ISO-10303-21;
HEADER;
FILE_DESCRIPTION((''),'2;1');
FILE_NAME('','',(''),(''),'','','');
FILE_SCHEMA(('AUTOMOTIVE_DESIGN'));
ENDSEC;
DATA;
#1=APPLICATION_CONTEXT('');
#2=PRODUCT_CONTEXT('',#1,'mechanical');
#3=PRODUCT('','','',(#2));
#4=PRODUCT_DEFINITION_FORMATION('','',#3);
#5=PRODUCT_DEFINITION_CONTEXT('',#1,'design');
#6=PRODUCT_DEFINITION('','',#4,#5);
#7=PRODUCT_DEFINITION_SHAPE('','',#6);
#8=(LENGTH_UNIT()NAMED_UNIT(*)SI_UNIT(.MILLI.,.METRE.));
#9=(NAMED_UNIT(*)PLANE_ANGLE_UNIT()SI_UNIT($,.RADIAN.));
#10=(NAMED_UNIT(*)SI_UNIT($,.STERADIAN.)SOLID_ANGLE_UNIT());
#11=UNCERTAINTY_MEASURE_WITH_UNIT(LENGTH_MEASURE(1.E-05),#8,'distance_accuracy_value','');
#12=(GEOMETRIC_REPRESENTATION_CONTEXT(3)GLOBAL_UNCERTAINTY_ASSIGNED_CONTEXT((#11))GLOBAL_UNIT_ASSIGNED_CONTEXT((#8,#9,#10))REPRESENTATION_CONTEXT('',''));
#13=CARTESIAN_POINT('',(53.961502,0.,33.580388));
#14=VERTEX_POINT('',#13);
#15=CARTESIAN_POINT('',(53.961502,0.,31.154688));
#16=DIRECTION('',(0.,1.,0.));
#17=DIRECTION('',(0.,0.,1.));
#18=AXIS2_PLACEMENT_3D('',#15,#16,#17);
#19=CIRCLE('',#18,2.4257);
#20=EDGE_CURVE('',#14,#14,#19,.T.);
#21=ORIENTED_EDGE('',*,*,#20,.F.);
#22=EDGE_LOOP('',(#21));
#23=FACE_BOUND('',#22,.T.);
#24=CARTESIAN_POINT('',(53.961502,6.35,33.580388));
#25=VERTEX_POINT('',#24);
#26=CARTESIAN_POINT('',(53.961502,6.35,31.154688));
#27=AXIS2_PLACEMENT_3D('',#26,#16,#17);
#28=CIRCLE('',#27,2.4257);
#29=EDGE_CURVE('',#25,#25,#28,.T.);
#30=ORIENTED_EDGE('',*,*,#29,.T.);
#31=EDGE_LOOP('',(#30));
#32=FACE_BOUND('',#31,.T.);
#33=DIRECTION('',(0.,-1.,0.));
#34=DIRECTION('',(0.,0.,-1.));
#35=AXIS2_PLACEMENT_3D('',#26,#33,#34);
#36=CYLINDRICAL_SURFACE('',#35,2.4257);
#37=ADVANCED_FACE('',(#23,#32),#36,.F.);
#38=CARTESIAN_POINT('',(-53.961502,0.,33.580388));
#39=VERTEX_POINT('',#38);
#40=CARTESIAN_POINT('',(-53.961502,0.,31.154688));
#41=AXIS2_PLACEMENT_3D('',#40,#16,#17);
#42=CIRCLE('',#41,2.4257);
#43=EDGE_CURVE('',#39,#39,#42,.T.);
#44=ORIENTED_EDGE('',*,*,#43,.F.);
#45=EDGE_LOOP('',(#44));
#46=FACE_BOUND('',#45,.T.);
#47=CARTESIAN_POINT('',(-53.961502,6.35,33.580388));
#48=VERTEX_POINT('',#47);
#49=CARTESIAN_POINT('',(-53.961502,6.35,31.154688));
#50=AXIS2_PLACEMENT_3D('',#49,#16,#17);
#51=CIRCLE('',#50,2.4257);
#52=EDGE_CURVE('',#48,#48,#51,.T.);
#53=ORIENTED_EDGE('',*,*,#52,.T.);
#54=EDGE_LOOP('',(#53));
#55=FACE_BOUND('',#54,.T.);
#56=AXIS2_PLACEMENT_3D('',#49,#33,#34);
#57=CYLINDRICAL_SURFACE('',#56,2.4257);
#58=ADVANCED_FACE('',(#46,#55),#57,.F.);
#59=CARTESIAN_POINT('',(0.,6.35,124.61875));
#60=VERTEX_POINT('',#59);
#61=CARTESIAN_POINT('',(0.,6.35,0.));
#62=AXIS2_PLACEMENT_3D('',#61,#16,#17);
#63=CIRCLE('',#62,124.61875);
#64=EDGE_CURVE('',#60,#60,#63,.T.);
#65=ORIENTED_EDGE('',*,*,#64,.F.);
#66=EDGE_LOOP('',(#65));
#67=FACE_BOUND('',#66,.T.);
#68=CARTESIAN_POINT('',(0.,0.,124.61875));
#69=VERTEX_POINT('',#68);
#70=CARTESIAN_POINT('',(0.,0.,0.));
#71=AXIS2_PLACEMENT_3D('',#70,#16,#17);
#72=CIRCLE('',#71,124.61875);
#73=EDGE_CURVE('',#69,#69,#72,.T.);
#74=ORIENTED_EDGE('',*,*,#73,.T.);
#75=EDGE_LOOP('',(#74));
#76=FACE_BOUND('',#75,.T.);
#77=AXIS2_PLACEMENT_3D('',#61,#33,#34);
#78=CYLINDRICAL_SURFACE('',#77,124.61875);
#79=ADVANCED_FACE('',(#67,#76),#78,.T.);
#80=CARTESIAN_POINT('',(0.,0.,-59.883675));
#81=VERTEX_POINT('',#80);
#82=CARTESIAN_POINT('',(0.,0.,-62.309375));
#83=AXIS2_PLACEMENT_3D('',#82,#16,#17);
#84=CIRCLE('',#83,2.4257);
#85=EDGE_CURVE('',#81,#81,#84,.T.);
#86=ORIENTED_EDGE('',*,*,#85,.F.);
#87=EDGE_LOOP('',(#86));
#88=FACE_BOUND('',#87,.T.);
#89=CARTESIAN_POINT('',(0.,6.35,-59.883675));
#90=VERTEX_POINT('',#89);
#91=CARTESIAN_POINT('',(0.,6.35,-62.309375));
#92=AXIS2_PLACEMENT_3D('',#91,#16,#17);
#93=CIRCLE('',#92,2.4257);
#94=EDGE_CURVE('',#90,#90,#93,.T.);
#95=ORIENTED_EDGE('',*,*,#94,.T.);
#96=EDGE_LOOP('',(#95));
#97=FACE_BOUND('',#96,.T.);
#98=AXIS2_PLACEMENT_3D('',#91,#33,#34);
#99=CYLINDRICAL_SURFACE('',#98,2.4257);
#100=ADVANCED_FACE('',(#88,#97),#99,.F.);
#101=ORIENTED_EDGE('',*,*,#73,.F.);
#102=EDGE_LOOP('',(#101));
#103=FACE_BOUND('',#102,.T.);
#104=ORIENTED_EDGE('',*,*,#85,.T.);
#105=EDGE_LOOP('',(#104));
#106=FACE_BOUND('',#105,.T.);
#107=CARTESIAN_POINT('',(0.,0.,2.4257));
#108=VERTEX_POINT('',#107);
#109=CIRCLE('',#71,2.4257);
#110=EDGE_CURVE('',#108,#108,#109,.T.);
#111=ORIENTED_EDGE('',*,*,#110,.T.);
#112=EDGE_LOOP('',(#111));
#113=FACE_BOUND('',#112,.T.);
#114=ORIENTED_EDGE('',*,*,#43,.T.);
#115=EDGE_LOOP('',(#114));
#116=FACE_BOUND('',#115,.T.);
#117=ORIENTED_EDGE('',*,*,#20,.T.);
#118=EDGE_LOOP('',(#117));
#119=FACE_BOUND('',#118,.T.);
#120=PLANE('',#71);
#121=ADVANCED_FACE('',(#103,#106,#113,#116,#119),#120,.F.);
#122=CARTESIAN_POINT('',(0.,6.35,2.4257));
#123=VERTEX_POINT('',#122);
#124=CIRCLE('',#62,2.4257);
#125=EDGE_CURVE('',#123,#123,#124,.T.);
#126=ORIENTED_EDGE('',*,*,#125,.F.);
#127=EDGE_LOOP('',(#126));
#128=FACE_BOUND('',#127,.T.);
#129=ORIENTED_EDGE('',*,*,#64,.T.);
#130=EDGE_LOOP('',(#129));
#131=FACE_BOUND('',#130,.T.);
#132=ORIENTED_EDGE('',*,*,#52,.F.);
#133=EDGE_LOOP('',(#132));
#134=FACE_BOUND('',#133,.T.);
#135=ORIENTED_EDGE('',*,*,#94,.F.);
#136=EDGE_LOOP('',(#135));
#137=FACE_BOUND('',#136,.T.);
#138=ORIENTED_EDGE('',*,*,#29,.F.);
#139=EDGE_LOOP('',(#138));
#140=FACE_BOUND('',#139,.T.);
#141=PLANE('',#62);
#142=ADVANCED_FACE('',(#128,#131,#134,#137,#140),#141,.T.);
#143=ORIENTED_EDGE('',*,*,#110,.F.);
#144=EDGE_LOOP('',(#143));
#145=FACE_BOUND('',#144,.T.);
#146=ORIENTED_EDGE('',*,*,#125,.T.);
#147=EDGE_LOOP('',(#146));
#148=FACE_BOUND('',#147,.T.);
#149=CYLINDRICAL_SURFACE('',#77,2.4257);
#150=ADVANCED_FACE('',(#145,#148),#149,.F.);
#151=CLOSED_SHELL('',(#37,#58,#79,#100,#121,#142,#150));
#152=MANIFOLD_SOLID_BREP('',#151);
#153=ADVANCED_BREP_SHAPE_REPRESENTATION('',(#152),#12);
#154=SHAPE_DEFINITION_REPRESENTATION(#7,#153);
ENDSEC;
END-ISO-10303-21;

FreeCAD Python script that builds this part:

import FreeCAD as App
import Part
import Sketcher
from FreeCAD import Vector
Q = App.Units.Quantity

doc = App.newDocument("Part")
params = doc.addObject("Spreadsheet::Sheet", "Params")
for row, (alias, value) in enumerate([
    ("sketch1_diameter", "9.8125 in"),
    ("sketch1_diameter2", "0.191 in"),
    ("pad1_length", "0.25 in"),
], start=1):
    params.set(f"A{row}", alias)
    params.set(f"B{row}", "=" + value)
    params.setAlias(f"B{row}", alias)

body = doc.addObject("PartDesign::Body", "Body")

sketch1 = body.newObject("Sketcher::SketchObject", "Sketch")
sketch1.AttachmentSupport = (doc.getObject("XZ_Plane"), [""])
sketch1.MapMode = "FlatFace"
sketch1.addGeometry(Part.Circle(Vector(0, 0, 0), Vector(0, 0, 1), 124.61875), False)
sketch1.addGeometry(Part.Circle(Vector(0, -62.309375, 0), Vector(0, 0, 1), 2.4257), False)
sketch1.addGeometry(Part.Circle(Vector(-53.961502, 31.154688, 0), Vector(0, 0, 1), 2.4257), False)
sketch1.addGeometry(Part.Circle(Vector(0, 0, 0), Vector(0, 0, 1), 2.4257), False)
sketch1.addGeometry(Part.Circle(Vector(53.961502, 31.154688, 0), Vector(0, 0, 1), 2.4257), False)
sketch1.addConstraint(Sketcher.Constraint("Coincident", 0, 3, -1, 1))
sketch1.addConstraint(Sketcher.Constraint("Coincident", 3, 3, -1, 1))
sketch1.addConstraint(Sketcher.Constraint("Equal", 1, 2))
sketch1.addConstraint(Sketcher.Constraint("Equal", 2, 3))
sketch1.addConstraint(Sketcher.Constraint("Equal", 3, 4))
sketch1.addConstraint(Sketcher.Constraint("Symmetric", 2, 3, 4, 3, -2))
sketch1.addConstraint(Sketcher.Constraint("PointOnObject", 1, 3, -2))
sketch1.addConstraint(Sketcher.Constraint("Diameter", 0, Q("9.8125 in")))
sketch1.addConstraint(Sketcher.Constraint("Diameter", 1, Q("0.191 in")))
sketch1.addConstraint(Sketcher.Constraint("DistanceY", 1, 3, -1, 1, Q("2.453125 in")))
sketch1.addConstraint(Sketcher.Constraint("DistanceX", 2, 3, -1, 1, 53.961502))
sketch1.addConstraint(Sketcher.Constraint("DistanceY", -1, 1, 2, 3, 31.154688))
sketch1.setExpression("Constraints[7]", "Params.sketch1_diameter")
sketch1.setExpression("Constraints[8]", "Params.sketch1_diameter2")
pad1 = body.newObject("PartDesign::Pad", "Pad")
pad1.Profile = sketch1
pad1.setExpression("Length", "Params.pad1_length")
pad1.Reversed = True

doc.recompute()
